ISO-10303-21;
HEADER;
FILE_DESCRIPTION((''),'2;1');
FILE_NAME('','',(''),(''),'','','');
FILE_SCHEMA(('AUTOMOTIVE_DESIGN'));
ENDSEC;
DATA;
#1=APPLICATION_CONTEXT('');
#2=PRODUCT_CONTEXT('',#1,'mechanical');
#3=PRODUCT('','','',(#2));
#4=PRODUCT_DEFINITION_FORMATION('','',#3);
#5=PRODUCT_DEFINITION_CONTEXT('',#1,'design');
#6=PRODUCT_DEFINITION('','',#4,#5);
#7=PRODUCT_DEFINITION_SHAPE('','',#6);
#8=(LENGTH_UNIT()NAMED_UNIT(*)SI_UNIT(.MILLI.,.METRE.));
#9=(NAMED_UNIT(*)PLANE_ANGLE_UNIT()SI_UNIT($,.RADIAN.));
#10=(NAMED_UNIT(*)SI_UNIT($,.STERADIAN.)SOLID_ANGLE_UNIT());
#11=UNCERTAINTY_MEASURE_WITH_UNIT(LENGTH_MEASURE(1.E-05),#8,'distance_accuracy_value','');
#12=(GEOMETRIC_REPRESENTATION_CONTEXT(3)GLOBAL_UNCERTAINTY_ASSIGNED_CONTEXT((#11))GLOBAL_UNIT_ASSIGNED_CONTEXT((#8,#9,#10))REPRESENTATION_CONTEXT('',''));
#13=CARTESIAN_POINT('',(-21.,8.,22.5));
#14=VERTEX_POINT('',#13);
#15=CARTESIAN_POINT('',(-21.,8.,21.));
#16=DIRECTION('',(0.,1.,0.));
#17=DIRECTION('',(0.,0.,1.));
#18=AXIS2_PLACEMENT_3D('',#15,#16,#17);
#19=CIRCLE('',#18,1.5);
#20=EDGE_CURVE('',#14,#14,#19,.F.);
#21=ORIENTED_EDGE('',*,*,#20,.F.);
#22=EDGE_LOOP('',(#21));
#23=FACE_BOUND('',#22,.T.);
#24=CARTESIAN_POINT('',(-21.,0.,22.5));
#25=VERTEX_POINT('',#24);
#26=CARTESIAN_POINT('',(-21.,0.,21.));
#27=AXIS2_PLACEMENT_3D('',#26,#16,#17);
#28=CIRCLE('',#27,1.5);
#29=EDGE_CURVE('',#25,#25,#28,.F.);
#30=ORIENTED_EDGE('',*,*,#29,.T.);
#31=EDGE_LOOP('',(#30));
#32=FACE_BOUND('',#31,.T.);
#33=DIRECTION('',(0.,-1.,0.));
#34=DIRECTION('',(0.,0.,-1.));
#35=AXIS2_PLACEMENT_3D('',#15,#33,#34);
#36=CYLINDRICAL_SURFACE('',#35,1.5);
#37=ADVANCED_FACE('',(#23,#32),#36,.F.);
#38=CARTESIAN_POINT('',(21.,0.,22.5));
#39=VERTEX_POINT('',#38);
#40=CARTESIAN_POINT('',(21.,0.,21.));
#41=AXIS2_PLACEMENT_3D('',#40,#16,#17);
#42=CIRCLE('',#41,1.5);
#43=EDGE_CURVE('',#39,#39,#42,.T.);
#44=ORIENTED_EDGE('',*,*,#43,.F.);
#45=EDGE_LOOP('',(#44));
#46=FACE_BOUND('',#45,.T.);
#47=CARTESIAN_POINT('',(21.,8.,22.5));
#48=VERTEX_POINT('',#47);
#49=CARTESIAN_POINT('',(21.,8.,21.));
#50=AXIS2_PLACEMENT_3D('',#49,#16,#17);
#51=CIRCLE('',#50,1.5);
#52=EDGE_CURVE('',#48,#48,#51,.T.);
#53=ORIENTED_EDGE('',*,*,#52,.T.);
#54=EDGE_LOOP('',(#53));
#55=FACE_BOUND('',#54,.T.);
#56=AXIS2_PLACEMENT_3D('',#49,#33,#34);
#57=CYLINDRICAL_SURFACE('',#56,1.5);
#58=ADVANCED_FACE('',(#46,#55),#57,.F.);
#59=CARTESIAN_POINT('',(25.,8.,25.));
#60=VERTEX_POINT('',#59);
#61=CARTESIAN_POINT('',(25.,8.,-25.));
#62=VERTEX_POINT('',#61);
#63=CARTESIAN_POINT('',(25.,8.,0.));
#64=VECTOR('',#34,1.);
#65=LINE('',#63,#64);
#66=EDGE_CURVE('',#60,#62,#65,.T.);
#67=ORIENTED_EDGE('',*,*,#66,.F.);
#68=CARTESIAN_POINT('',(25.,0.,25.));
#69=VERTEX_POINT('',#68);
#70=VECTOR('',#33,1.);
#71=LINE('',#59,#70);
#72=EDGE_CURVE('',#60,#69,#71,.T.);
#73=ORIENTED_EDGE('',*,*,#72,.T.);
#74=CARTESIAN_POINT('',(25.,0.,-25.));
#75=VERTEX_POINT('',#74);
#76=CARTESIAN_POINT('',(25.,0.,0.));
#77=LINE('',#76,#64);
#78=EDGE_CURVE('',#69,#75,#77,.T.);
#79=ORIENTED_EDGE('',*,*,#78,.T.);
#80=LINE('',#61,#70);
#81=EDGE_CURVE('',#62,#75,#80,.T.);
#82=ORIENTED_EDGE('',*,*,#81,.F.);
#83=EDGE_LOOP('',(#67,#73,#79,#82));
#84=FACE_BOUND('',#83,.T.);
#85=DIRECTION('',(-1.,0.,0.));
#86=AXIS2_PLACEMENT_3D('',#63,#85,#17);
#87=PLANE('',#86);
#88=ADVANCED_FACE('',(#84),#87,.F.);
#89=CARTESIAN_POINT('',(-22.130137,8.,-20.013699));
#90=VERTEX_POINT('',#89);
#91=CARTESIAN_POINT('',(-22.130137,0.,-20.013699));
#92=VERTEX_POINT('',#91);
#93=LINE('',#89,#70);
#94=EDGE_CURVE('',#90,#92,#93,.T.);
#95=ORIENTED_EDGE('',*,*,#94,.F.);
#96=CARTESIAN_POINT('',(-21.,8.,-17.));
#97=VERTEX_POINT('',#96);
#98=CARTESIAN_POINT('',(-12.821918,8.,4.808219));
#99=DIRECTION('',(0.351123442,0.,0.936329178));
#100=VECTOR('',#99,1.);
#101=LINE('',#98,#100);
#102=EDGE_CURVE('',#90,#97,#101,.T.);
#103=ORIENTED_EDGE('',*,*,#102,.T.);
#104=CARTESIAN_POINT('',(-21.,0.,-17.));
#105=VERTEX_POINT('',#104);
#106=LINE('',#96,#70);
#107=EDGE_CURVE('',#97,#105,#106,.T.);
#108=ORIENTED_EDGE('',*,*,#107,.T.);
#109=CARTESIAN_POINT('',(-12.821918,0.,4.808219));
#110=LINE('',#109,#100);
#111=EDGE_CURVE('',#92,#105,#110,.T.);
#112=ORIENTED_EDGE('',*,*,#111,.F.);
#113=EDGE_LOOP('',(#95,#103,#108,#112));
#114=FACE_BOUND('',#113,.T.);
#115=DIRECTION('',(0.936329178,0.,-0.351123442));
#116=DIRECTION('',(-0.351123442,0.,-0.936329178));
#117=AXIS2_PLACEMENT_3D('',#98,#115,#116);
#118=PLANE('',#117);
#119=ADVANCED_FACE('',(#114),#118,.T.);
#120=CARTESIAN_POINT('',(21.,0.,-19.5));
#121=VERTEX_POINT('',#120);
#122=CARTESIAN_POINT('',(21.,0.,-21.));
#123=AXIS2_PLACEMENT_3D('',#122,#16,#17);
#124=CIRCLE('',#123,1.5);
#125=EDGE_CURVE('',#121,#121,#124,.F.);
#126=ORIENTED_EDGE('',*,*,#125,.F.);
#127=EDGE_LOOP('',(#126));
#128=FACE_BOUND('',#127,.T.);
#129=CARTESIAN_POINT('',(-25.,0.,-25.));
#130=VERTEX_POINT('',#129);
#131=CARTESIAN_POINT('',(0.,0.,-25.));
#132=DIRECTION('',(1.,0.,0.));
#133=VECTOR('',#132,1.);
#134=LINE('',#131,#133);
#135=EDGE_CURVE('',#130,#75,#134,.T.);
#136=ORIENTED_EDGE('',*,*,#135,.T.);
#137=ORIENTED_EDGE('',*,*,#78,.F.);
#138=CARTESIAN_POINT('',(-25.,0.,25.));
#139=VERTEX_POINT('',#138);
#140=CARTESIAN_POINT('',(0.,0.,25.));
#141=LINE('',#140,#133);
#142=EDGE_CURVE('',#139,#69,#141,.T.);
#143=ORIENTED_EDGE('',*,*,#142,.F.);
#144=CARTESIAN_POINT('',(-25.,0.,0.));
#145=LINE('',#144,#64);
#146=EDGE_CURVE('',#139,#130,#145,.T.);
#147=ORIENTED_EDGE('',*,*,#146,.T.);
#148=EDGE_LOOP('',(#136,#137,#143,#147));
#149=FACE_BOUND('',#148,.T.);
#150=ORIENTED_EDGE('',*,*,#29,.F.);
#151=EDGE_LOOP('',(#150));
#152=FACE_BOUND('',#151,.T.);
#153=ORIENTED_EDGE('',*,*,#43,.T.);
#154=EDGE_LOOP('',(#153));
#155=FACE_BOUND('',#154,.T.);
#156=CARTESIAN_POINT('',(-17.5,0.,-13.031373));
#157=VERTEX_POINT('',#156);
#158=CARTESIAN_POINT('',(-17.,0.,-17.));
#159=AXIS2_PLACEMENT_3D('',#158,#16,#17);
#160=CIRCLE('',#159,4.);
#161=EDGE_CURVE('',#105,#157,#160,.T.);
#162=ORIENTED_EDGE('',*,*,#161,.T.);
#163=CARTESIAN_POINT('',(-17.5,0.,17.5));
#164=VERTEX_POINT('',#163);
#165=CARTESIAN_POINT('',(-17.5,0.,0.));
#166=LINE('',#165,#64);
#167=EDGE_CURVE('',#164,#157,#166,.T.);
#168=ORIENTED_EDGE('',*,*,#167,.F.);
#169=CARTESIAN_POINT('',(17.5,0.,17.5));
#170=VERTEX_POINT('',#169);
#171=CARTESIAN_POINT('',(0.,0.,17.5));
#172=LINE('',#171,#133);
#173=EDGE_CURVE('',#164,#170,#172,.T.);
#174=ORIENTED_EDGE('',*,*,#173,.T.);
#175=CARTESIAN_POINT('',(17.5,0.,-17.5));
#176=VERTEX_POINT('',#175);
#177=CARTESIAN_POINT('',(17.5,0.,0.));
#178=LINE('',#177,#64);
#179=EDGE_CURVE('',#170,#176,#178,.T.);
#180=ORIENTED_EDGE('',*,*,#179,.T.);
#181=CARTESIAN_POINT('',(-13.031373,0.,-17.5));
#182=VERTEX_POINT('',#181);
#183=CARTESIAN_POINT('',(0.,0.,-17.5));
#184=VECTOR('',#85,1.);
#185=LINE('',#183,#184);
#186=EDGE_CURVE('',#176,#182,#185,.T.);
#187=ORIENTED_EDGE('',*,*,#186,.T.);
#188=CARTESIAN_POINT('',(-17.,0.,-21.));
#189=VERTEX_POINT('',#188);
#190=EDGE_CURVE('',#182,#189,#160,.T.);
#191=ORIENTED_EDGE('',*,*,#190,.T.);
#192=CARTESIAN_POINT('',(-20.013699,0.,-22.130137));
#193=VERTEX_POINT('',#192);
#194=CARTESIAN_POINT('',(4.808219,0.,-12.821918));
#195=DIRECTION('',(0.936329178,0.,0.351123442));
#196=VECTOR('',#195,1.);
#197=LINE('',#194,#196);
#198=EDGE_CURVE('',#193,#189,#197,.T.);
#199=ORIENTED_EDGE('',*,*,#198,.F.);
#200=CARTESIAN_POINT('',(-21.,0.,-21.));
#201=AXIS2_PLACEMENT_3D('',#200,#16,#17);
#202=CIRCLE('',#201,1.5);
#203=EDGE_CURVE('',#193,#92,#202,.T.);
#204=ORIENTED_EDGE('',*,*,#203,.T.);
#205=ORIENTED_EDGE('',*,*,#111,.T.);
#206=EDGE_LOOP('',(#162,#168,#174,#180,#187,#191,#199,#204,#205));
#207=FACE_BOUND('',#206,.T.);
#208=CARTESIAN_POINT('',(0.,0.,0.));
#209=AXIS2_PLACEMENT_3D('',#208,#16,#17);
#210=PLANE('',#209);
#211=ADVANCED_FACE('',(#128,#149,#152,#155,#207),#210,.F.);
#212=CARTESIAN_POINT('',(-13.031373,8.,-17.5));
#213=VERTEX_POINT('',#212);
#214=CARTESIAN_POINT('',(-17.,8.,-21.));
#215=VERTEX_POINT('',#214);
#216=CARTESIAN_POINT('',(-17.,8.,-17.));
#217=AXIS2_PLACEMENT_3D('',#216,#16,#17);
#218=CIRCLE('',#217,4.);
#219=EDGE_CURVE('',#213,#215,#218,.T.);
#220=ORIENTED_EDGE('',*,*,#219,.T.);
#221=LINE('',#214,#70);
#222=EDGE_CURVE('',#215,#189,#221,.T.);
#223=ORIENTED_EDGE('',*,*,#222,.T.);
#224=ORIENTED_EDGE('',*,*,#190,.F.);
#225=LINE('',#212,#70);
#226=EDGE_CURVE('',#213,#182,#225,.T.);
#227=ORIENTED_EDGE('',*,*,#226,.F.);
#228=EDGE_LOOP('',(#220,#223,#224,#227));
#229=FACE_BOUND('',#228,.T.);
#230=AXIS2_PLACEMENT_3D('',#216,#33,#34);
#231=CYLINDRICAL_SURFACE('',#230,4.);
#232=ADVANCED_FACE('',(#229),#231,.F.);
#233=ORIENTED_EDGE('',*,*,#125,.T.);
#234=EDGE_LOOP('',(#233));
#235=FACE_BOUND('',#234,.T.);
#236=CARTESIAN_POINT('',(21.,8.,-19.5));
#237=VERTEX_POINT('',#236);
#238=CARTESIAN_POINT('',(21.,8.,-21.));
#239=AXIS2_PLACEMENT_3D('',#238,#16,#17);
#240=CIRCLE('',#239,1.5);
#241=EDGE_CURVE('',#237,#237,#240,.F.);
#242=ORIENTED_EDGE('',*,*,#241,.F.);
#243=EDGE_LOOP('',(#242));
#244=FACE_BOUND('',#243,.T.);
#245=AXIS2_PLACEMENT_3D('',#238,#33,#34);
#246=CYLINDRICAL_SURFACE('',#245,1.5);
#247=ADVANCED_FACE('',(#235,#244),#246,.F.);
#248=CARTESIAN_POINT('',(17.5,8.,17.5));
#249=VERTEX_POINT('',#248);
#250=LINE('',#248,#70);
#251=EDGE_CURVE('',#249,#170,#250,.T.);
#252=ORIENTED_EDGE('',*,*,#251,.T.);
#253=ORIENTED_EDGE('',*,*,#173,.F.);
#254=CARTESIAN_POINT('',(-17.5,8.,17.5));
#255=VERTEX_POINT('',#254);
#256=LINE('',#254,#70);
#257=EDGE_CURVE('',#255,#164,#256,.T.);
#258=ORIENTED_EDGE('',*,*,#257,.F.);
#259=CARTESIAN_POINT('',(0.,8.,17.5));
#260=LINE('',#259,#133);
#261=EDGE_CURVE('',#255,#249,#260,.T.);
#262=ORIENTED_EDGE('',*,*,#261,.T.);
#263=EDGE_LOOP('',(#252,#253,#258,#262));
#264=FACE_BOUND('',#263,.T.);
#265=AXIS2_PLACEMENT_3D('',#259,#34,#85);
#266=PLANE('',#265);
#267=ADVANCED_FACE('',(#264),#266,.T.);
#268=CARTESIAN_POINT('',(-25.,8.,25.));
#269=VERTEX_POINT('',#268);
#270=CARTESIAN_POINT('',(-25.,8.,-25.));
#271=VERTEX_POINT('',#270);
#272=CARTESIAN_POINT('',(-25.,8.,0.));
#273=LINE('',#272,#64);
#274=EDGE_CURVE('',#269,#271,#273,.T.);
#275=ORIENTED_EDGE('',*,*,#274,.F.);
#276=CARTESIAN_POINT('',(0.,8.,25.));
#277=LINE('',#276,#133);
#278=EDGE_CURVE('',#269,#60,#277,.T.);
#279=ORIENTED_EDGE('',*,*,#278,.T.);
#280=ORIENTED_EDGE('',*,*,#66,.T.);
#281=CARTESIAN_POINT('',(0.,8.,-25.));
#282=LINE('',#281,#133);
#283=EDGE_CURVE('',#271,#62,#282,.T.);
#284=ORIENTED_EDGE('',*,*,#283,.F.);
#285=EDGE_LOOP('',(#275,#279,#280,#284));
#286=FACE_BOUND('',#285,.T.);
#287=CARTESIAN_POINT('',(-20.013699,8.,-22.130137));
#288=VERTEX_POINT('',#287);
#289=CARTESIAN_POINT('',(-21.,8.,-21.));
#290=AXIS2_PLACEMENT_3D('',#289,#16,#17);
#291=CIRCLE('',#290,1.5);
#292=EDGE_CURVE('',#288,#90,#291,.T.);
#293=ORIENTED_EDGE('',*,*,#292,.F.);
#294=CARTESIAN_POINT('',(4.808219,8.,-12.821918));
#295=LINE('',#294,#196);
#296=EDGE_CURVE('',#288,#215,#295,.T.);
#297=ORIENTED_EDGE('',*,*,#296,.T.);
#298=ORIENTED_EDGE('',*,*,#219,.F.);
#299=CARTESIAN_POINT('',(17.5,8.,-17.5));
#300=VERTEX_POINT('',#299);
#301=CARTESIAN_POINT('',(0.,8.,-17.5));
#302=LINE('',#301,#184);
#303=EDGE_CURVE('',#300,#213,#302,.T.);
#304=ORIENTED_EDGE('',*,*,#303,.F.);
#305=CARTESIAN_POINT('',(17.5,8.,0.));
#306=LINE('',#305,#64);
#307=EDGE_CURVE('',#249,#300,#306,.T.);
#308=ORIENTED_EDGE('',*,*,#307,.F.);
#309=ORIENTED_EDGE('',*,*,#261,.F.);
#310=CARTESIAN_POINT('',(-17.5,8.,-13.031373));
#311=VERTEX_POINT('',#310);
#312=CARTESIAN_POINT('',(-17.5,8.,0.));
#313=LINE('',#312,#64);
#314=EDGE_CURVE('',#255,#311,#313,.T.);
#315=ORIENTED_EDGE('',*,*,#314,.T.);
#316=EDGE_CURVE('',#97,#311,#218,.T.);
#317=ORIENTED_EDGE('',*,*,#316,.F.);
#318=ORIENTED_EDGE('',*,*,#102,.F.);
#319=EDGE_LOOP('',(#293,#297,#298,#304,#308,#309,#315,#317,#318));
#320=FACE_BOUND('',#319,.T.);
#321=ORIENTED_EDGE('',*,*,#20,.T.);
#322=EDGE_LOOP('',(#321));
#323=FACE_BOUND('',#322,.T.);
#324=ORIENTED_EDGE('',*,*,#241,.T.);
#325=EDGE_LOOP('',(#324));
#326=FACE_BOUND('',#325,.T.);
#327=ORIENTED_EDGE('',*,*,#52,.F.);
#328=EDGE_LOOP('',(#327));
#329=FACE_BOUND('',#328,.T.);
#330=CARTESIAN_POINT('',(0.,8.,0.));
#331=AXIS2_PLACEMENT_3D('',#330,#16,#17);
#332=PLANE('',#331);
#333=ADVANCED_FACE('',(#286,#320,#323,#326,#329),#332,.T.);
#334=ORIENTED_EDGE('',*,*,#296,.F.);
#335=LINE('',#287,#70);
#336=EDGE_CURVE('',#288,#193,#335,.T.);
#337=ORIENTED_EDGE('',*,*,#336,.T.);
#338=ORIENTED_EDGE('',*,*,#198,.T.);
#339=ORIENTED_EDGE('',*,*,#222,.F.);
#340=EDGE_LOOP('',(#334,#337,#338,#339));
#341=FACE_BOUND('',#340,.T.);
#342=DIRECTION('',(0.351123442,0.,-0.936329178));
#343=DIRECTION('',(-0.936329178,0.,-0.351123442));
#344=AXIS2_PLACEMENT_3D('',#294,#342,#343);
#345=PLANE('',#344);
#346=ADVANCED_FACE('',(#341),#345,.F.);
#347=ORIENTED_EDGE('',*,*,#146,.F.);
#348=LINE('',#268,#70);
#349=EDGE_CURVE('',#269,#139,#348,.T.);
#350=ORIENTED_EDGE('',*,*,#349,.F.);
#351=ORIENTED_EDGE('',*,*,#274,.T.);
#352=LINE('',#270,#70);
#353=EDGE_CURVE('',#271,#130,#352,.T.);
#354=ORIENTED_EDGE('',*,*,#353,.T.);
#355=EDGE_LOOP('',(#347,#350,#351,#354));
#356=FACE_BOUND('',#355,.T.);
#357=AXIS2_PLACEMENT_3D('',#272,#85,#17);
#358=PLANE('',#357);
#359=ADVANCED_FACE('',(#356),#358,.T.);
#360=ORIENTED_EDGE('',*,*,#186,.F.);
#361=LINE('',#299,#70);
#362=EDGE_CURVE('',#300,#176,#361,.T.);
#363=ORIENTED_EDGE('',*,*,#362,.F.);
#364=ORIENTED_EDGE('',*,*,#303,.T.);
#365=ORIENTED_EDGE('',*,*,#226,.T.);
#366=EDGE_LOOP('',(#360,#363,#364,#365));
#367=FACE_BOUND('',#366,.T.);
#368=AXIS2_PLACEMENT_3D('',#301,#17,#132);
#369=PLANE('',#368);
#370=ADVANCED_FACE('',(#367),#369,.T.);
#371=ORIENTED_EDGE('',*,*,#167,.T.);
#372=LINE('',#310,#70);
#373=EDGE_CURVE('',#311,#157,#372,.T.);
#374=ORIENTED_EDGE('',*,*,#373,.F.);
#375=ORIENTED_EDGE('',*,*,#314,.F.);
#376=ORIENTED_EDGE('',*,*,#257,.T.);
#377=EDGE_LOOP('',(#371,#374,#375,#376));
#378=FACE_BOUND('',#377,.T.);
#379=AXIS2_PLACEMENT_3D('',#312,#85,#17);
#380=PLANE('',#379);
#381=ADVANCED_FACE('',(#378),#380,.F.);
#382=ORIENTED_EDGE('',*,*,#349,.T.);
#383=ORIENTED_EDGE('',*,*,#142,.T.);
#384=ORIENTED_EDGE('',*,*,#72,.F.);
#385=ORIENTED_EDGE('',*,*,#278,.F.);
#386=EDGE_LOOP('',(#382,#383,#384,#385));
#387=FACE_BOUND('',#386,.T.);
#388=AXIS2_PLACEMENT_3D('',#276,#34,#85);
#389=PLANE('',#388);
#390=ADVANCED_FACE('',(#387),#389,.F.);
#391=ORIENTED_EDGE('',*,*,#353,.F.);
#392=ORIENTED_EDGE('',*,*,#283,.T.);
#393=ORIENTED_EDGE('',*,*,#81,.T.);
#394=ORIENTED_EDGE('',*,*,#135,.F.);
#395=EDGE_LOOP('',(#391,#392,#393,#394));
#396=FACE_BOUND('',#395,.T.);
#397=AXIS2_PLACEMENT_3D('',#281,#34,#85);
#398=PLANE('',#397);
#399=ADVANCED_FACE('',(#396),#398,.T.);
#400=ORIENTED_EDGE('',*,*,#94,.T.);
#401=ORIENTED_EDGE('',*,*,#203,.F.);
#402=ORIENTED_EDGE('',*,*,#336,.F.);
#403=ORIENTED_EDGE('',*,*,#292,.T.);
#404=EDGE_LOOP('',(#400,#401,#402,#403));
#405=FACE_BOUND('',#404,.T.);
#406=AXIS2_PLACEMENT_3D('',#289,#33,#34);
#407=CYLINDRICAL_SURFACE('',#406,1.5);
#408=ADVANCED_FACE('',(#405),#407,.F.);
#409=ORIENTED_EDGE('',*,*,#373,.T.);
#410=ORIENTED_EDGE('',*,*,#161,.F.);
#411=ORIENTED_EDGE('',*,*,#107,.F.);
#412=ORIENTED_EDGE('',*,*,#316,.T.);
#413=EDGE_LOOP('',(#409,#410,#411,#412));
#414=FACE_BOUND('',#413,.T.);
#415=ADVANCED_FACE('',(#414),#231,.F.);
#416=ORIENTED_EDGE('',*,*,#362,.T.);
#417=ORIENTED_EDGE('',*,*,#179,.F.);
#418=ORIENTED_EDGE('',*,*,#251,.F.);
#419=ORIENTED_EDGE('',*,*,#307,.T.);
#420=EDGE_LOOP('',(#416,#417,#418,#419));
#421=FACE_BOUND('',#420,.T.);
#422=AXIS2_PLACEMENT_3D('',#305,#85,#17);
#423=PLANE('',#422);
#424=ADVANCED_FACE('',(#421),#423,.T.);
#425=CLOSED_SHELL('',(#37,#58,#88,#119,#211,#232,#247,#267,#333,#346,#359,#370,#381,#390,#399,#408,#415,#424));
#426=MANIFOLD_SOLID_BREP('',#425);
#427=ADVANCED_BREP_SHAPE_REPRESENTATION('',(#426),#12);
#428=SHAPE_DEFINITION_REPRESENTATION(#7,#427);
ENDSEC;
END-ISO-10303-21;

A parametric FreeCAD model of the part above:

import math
import FreeCAD as App
import Part
import Sketcher
from FreeCAD import Vector


def add_polygon(sketch, points):
    """Adds a closed chain of lines whose ends are joined by coincident constraints."""
    first, n = sketch.GeometryCount, len(points)
    for a, b in zip(points, points[1:] + points[:1]):
        sketch.addGeometry(Part.LineSegment(App.Vector(*a, 0), App.Vector(*b, 0)), False)
    for i in range(n):
        sketch.addConstraint(Sketcher.Constraint("Coincident", first + i, 2, first + (i + 1) % n, 1))

doc = App.newDocument("Part")
body = doc.addObject("PartDesign::Body", "Body")

# Sketch on XZ plane
sketch1 = doc.addObject("Sketcher::SketchObject", "Sketch")
body.addObject(sketch1)
sketch1.AttachmentSupport = (doc.XZ_Plane, [""])
sketch1.MapMode = "FlatFace"
add_polygon(sketch1, [(-25, -25), (-25, 25), (25, 25), (25, -25)])  # lines 0-3
sketch1.addGeometry(Part.Circle(Vector(-21, 21, 0), Vector(0, 0, 1), 1.5), False)  # 4
sketch1.addGeometry(Part.Circle(Vector(21, 21, 0), Vector(0, 0, 1), 1.5), False)  # 5
sketch1.addGeometry(Part.ArcOfCircle(Part.Circle(Vector(-17, -17, 0), Vector(0, 0, 1), 4), math.radians(-90), math.radians(-7.180756)), False)  # 6
sketch1.addGeometry(Part.LineSegment(Vector(-13.031373, -17.5, 0), Vector(17.5, -17.5, 0)), False)  # 7
sketch1.addGeometry(Part.LineSegment(Vector(17.5, -17.5, 0), Vector(17.5, 17.5, 0)), False)  # 8
sketch1.addGeometry(Part.LineSegment(Vector(17.5, 17.5, 0), Vector(-17.5, 17.5, 0)), False)  # 9
sketch1.addGeometry(Part.LineSegment(Vector(-17.5, 17.5, 0), Vector(-17.5, -13.031373, 0)), False)  # 10
sketch1.addGeometry(Part.ArcOfCircle(Part.Circle(Vector(-17, -17, 0), Vector(0, 0, 1), 4), math.radians(97.180756), math.radians(180)), False)  # 11
sketch1.addGeometry(Part.LineSegment(Vector(-21, -17, 0), Vector(-22.130137, -20.013699, 0)), False)  # 12
sketch1.addGeometry(Part.ArcOfCircle(Part.Circle(Vector(-21, -21, 0), Vector(0, 0, 1), 1.5), math.radians(138.88791), math.radians(311.11209)), False)  # 13
sketch1.addGeometry(Part.LineSegment(Vector(-20.013699, -22.130137, 0), Vector(-17, -21, 0)), False)  # 14
sketch1.addGeometry(Part.Circle(Vector(21, -21, 0), Vector(0, 0, 1), 1.5), False)  # 15
sketch1.addConstraint([
    Sketcher.Constraint("Coincident", 6, 2, 7, 1),
    Sketcher.Constraint("Coincident", 7, 2, 8, 1),
    Sketcher.Constraint("Coincident", 8, 2, 9, 1),
    Sketcher.Constraint("Coincident", 9, 2, 10, 1),
    Sketcher.Constraint("Coincident", 10, 2, 11, 1),
    Sketcher.Constraint("Coincident", 11, 2, 12, 1),
    Sketcher.Constraint("Coincident", 12, 2, 13, 1),
    Sketcher.Constraint("Coincident", 13, 2, 14, 1),
    Sketcher.Constraint("Coincident", 14, 2, 6, 1),
    Sketcher.Constraint("Vertical", 0),
    Sketcher.Constraint("Horizontal", 1),
    Sketcher.Constraint("Vertical", 2),
    Sketcher.Constraint("Horizontal", 3),
    Sketcher.Constraint("Horizontal", 7),
    Sketcher.Constraint("Vertical", 8),
    Sketcher.Constraint("Horizontal", 9),
    Sketcher.Constraint("Vertical", 10),
    Sketcher.Constraint("Coincident", 11, 3, 6, 3),
    Sketcher.Constraint("Equal", 4, 5),
    Sketcher.Constraint("Equal", 6, 11),
    Sketcher.Constraint("Equal", 5, 13),
    Sketcher.Constraint("Equal", 13, 15),
    Sketcher.Constraint("Symmetric", 5, 3, 13, 3, -1, 1),
    Sketcher.Constraint("Symmetric", 4, 3, 15, 3, -1, 1),
    Sketcher.Constraint("Symmetric", 0, 2, 2, 2, -1, 1),
    Sketcher.Constraint("Symmetric", 7, 2, 9, 2, -1, 1),
    Sketcher.Constraint("Symmetric", 4, 3, 5, 3, -2),
    Sketcher.Constraint("Horizontal", 6, 3, 11, 2),
    Sketcher.Constraint("Horizontal", 15, 3, 14, 2),
    Sketcher.Constraint("Vertical", 13, 3, 11, 2),
    Sketcher.Constraint("Vertical", 11, 3, 14, 2),
    Sketcher.Constraint("Equal", 3, 0),
    Sketcher.Constraint("Equal", 9, 8),
    Sketcher.Constraint("Equal", 7, 10),
    Sketcher.Constraint("Equal", 12, 14),
    Sketcher.Constraint("Diameter", 4, 3.0),
    Sketcher.Constraint("Radius", 6, 4.0),
    Sketcher.Constraint("DistanceX", 1, 1, 1, 2, 50.0),
    Sketcher.Constraint("DistanceX", 9, 2, 9, 1, 35.0),
    Sketcher.Constraint("DistanceX", 4, 3, -1, 1, 21.0),
    Sketcher.Constraint("DistanceY", 12, 2, -1, 1, 20.013699),
])
pad1 = doc.addObject("PartDesign::Pad", "Pad")
body.addObject(pad1)
pad1.Profile = sketch1
pad1.Length = 8
pad1.Reversed = True

doc.recompute()
